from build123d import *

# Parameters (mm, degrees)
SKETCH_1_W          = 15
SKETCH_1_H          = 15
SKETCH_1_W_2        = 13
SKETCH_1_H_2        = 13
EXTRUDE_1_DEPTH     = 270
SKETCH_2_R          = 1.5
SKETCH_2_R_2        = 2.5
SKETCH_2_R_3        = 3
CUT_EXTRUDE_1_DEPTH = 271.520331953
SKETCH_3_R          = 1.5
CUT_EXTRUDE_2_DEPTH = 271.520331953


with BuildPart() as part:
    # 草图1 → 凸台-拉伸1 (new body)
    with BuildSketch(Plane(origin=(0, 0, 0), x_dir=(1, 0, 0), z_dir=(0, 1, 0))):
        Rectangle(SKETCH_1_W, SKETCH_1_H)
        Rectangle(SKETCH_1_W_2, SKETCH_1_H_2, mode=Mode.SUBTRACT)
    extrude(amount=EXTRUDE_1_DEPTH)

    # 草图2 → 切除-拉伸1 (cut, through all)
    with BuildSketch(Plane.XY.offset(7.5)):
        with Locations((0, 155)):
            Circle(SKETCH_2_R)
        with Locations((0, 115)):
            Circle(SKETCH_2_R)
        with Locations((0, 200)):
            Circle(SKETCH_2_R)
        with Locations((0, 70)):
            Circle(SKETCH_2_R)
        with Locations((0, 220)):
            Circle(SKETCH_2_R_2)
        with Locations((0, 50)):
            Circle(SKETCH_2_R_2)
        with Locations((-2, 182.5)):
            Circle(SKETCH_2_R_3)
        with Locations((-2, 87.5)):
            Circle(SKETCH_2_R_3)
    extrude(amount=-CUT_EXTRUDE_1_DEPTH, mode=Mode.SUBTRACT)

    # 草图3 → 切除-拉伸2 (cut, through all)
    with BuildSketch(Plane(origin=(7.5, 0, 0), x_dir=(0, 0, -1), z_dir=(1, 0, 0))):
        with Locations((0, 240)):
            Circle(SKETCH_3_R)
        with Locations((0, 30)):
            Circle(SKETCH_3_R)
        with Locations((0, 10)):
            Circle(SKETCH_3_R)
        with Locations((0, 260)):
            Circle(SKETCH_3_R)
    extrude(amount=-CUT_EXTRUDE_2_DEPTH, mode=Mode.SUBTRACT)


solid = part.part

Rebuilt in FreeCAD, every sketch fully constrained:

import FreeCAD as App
import Part
import Sketcher

V = App.Vector


def add_polygon(sketch, points):
    """Adds a closed chain of lines whose ends are joined by coincident constraints."""
    first, n = sketch.GeometryCount, len(points)
    for a, b in zip(points, points[1:] + points[:1]):
        sketch.addGeometry(Part.LineSegment(App.Vector(*a, 0), App.Vector(*b, 0)), False)
    for i in range(n):
        sketch.addConstraint(Sketcher.Constraint("Coincident", first + i, 2, first + (i + 1) % n, 1))

doc = App.newDocument("Part")
params = doc.addObject("Spreadsheet::Sheet", "Params")
for row, (alias, value) in enumerate([
    ("sketch1_width", "15 mm"),
    ("sketch1_width2", "13 mm"),
    ("pad1_length", "270 mm"),
    ("sketch2_diameter", "3 mm"),
    ("sketch2_diameter2", "5 mm"),
    ("sketch2_diameter3", "6 mm"),
    ("sketch3_diameter", "3 mm"),
], start=1):
    params.set(f"A{row}", alias)
    params.set(f"B{row}", "=" + value)
    params.setAlias(f"B{row}", alias)

body = doc.addObject("PartDesign::Body", "Body")

# Sketch on XZ plane
sketch1 = body.newObject("Sketcher::SketchObject", "Sketch")
sketch1.AttachmentSupport = (doc.getObject("XZ_Plane"), [""])
sketch1.MapMode = "FlatFace"
add_polygon(sketch1, [(-8, -8), (-8, 8), (8, 8), (8, -8)])  # lines 0-3
add_polygon(sketch1, [(6, 6), (-6, 6), (-6, -6), (6, -6)])  # lines 4-7
sketch1.addConstraint([
    Sketcher.Constraint("Vertical", 0),
    Sketcher.Constraint("Horizontal", 1),
    Sketcher.Constraint("Vertical", 2),
    Sketcher.Constraint("Horizontal", 3),
    Sketcher.Constraint("Horizontal", 4),
    Sketcher.Constraint("Vertical", 5),
    Sketcher.Constraint("Horizontal", 6),
    Sketcher.Constraint("Vertical", 7),
    Sketcher.Constraint("Symmetric", 0, 2, 2, 2, -1, 1),
    Sketcher.Constraint("Symmetric", 4, 2, 6, 2, -1, 1),
    Sketcher.Constraint("Equal", 3, 0),
    Sketcher.Constraint("Equal", 6, 5),
    Sketcher.Constraint("DistanceX", 1, 1, 1, 2, 15.0),
    Sketcher.Constraint("DistanceX", 4, 2, 4, 1, 13.0),
])
sketch1.setExpression("Constraints[20]", "Params.sketch1_width")
sketch1.setExpression("Constraints[21]", "Params.sketch1_width2")
pad1 = body.newObject("PartDesign::Pad", "Pad")
pad1.Profile = sketch1
pad1.setExpression("Length", "Params.pad1_length")
pad1.Reversed = True

# Sketch on XY plane
sketch2 = body.newObject("Sketcher::SketchObject", "Sketch001")
sketch2.AttachmentSupport = (doc.getObject("XY_Plane"), [""])
sketch2.MapMode = "FlatFace"
sketch2.AttachmentOffset = App.Placement(V(0, 0, 7.5), App.Rotation())
sketch2.addGeometry([
    Part.Circle(V(0, 155, 0), V(0, 0, 1), 1.5),  # 0
    Part.Circle(V(0, 115, 0), V(0, 0, 1), 1.5),  # 1
    Part.Circle(V(0, 200, 0), V(0, 0, 1), 1.5),  # 2
    Part.Circle(V(0, 70, 0), V(0, 0, 1), 1.5),  # 3
    Part.Circle(V(0, 220, 0), V(0, 0, 1), 2.5),  # 4
    Part.Circle(V(0, 50, 0), V(0, 0, 1), 2.5),  # 5
    Part.Circle(V(-2, 182.5, 0), V(0, 0, 1), 3),  # 6
    Part.Circle(V(-2, 87.5, 0), V(0, 0, 1), 3),  # 7
], False)
sketch2.addConstraint([
    Sketcher.Constraint("Equal", 0, 1),
    Sketcher.Constraint("Equal", 1, 2),
    Sketcher.Constraint("Equal", 2, 3),
    Sketcher.Constraint("Equal", 4, 5),
    Sketcher.Constraint("Equal", 6, 7),
    Sketcher.Constraint("PointOnObject", 0, 3, -2),
    Sketcher.Constraint("PointOnObject", 1, 3, -2),
    Sketcher.Constraint("PointOnObject", 2, 3, -2),
    Sketcher.Constraint("PointOnObject", 3, 3, -2),
    Sketcher.Constraint("PointOnObject", 4, 3, -2),
    Sketcher.Constraint("PointOnObject", 5, 3, -2),
    Sketcher.Constraint("Vertical", 6, 3, 7, 3),
    Sketcher.Constraint("Diameter", 0, 3.0),
    Sketcher.Constraint("Diameter", 4, 5.0),
    Sketcher.Constraint("Diameter", 6, 6.0),
    Sketcher.Constraint("DistanceY", -1, 1, 0, 3, 155.0),
    Sketcher.Constraint("DistanceY", -1, 1, 1, 3, 115.0),
    Sketcher.Constraint("DistanceY", -1, 1, 2, 3, 200.0),
    Sketcher.Constraint("DistanceY", -1, 1, 3, 3, 70.0),
    Sketcher.Constraint("DistanceY", -1, 1, 4, 3, 220.0),
    Sketcher.Constraint("DistanceY", -1, 1, 5, 3, 50.0),
    Sketcher.Constraint("DistanceX", 6, 3, -1, 1, 2.0),
    Sketcher.Constraint("DistanceY", 7, 3, 6, 3, 95.0),
    Sketcher.Constraint("DistanceY", -1, 1, 6, 3, 182.5),
])
sketch2.setExpression("Constraints[12]", "Params.sketch2_diameter")
sketch2.setExpression("Constraints[13]", "Params.sketch2_diameter2")
sketch2.setExpression("Constraints[14]", "Params.sketch2_diameter3")
pocket1 = body.newObject("PartDesign::Pocket", "Pocket")
pocket1.Profile = sketch2
pocket1.Type = "ThroughAll"

# Sketch on YZ plane
sketch3 = body.newObject("Sketcher::SketchObject", "Sketch002")
sketch3.AttachmentSupport = (doc.getObject("YZ_Plane"), [""])
sketch3.MapMode = "FlatFace"
sketch3.AttachmentOffset = App.Placement(V(0, 0, 7.5), App.Rotation())
sketch3.addGeometry([
    Part.Circle(V(240, 0, 0), V(0, 0, 1), 1.5),
    Part.Circle(V(30, 0, 0), V(0, 0, 1), 1.5),
    Part.Circle(V(10, 0, 0), V(0, 0, 1), 1.5),
    Part.Circle(V(260, 0, 0), V(0, 0, 1), 1.5),
], False)
sketch3.addConstraint([
    Sketcher.Constraint("Equal", 0, 1),
    Sketcher.Constraint("Equal", 1, 2),
    Sketcher.Constraint("Equal", 2, 3),
    Sketcher.Constraint("PointOnObject", 0, 3, -1),
    Sketcher.Constraint("PointOnObject", 1, 3, -1),
    Sketcher.Constraint("PointOnObject", 2, 3, -1),
    Sketcher.Constraint("PointOnObject", 3, 3, -1),
    Sketcher.Constraint("Diameter", 0, 3.0),
    Sketcher.Constraint("DistanceX", -1, 1, 0, 3, 240.0),
    Sketcher.Constraint("DistanceX", -1, 1, 1, 3, 30.0),
    Sketcher.Constraint("DistanceX", -1, 1, 2, 3, 10.0),
    Sketcher.Constraint("DistanceX", -1, 1, 3, 3, 260.0),
])
sketch3.setExpression("Constraints[7]", "Params.sketch3_diameter")
pocket2 = body.newObject("PartDesign::Pocket", "Pocket001")
pocket2.Profile = sketch3
pocket2.Type = "ThroughAll"

doc.recompute()
